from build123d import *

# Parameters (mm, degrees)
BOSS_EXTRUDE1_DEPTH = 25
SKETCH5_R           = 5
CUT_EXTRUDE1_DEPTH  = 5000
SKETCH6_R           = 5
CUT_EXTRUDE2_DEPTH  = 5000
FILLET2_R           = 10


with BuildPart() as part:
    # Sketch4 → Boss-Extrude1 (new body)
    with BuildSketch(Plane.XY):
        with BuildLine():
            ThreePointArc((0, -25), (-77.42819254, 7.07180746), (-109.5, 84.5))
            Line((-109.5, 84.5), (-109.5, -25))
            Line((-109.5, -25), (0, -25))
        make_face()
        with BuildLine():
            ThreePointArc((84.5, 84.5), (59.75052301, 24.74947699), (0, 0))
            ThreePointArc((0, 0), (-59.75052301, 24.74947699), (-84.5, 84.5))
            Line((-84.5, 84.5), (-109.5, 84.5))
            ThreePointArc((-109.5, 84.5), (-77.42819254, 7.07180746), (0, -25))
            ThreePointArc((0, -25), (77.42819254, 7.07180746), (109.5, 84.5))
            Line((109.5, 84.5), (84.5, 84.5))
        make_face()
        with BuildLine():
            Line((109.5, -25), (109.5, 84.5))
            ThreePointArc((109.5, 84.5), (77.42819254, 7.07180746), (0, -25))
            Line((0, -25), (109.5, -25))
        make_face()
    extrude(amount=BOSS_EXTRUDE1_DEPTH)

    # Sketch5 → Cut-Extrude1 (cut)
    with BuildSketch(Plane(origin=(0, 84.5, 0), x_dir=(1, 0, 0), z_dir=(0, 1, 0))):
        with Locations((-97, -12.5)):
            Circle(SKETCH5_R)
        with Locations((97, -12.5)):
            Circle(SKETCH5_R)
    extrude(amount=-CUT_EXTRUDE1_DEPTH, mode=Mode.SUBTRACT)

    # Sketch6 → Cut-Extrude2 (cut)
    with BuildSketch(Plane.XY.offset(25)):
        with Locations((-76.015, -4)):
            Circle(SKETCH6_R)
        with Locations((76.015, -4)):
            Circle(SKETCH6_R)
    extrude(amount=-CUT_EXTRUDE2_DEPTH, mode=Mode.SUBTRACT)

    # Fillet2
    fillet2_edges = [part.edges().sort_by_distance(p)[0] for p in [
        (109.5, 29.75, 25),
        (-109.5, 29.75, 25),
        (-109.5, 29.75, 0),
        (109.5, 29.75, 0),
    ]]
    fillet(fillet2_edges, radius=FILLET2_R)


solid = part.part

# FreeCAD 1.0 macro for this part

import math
import FreeCAD as App
import Part
import Sketcher


def edges_at(feature, points):
    """Names of the edges that pass closest to the given points."""
    edges = feature.Shape.Edges
    near = lambda p: min(range(len(edges)), key=lambda i: edges[i].distToShape(Part.Vertex(*p))[0])
    return sorted({f"Edge{near(p) + 1}" for p in points})

doc = App.newDocument("Part")
params = doc.addObject("Spreadsheet::Sheet", "Params")
for row, (alias, value) in enumerate([
    ("sketch1_radius", "84.5 mm"),
    ("sketch1_width", "219 mm"),
    ("sketch1_height", "109.5 mm"),
    ("pad1_length", "25 mm"),
    ("sketch2_diameter", "10 mm"),
    ("pocket1_length", "5000 mm"),
    ("sketch3_diameter", "10 mm"),
    ("pocket2_length", "5000 mm"),
    ("fillet_radius", "10 mm"),
], start=1):
    params.set(f"A{row}", alias)
    params.set(f"B{row}", "=" + value)
    params.setAlias(f"B{row}", alias)

body = doc.addObject("PartDesign::Body", "Body")

sketch1 = body.newObject("Sketcher::SketchObject", "Sketch")
sketch1.AttachmentSupport = (doc.getObject("XY_Plane"), [""])
sketch1.MapMode = "FlatFace"
sketch1.addGeometry([
    Part.LineSegment(App.Vector(-110, 84, 0), App.Vector(-110, -25, 0)),
    Part.LineSegment(App.Vector(-110, -25, 0), App.Vector(110, -25, 0)),
    Part.LineSegment(App.Vector(110, -25, 0), App.Vector(110, 84, 0)),
    Part.LineSegment(App.Vector(110, 84, 0), App.Vector(84, 84, 0)),
    Part.ArcOfCircle(Part.Circle(App.Vector(0, 85, 0), App.Vector(0, 0, 1), 85), math.radians(-90), math.radians(0)),
    Part.ArcOfCircle(Part.Circle(App.Vector(0, 85, 0), App.Vector(0, 0, 1), 85), math.radians(-180), math.radians(-90)),
    Part.LineSegment(App.Vector(-84, 84, 0), App.Vector(-110, 84, 0)),
], False)
sketch1.addConstraint([
    Sketcher.Constraint("Coincident", 0, 2, 1, 1),
    Sketcher.Constraint("Coincident", 1, 2, 2, 1),
    Sketcher.Constraint("Coincident", 2, 2, 3, 1),
    Sketcher.Constraint("Coincident", 3, 2, 4, 2),
    Sketcher.Constraint("Tangent", 4, 1, 5, 2),
    Sketcher.Constraint("Coincident", 5, 1, 6, 1),
    Sketcher.Constraint("Coincident", 6, 2, 0, 1),
    Sketcher.Constraint("Vertical", 0),
    Sketcher.Constraint("Horizontal", 1),
    Sketcher.Constraint("Vertical", 2),
    Sketcher.Constraint("Horizontal", 3),
    Sketcher.Constraint("Horizontal", 6),
    Sketcher.Constraint("Coincident", 4, 1, -1, 1),
    Sketcher.Constraint("Equal", 4, 5),
    Sketcher.Constraint("Symmetric", 3, 2, 5, 1, -2),
    Sketcher.Constraint("Horizontal", 5, 3, 2, 2),
    Sketcher.Constraint("Equal", 3, 6),
    Sketcher.Constraint("Radius", 4, 84.5),
    Sketcher.Constraint("DistanceX", 1, 1, 1, 2, 219.0),
    Sketcher.Constraint("DistanceY", 0, 2, 0, 1, 109.5),
])
sketch1.setExpression("Constraints[17]", "Params.sketch1_radius")
sketch1.setExpression("Constraints[18]", "Params.sketch1_width")
sketch1.setExpression("Constraints[19]", "Params.sketch1_height")
pad1 = body.newObject("PartDesign::Pad", "Pad")
pad1.Profile = sketch1
pad1.setExpression("Length", "Params.pad1_length")

sketch2 = body.newObject("Sketcher::SketchObject", "Sketch001")
sketch2.AttachmentSupport = (doc.getObject("XZ_Plane"), [""])
sketch2.MapMode = "FlatFace"
sketch2.AttachmentOffset = App.Placement(App.Vector(0, 0, -84.5), App.Rotation())
sketch2.addGeometry([
    Part.Circle(App.Vector(-97, 12, 0), App.Vector(0, 0, 1), 5),
    Part.Circle(App.Vector(97, 12, 0), App.Vector(0, 0, 1), 5),
], False)
sketch2.addConstraint([
    Sketcher.Constraint("Equal", 0, 1),
    Sketcher.Constraint("Symmetric", 0, 3, 1, 3, -2),
    Sketcher.Constraint("Diameter", 0, 10.0),
    Sketcher.Constraint("DistanceX", 0, 3, -1, 1, 97.0),
    Sketcher.Constraint("DistanceY", -1, 1, 0, 3, 12.5),
])
sketch2.setExpression("Constraints[2]", "Params.sketch2_diameter")
pocket1 = body.newObject("PartDesign::Pocket", "Pocket")
pocket1.Profile = sketch2
pocket1.setExpression("Length", "Params.pocket1_length")
pocket1.Reversed = True

sketch3 = body.newObject("Sketcher::SketchObject", "Sketch002")
sketch3.AttachmentSupport = (doc.getObject("XY_Plane"), [""])
sketch3.MapMode = "FlatFace"
sketch3.AttachmentOffset = App.Placement(App.Vector(0, 0, 25), App.Rotation())
sketch3.addGeometry([
    Part.Circle(App.Vector(-76, -4, 0), App.Vector(0, 0, 1), 5),
    Part.Circle(App.Vector(76, -4, 0), App.Vector(0, 0, 1), 5),
], False)
sketch3.addConstraint([
    Sketcher.Constraint("Equal", 0, 1),
    Sketcher.Constraint("Symmetric", 0, 3, 1, 3, -2),
    Sketcher.Constraint("Diameter", 0, 10.0),
    Sketcher.Constraint("DistanceY", 0, 3, -1, 1, 4.0),
    Sketcher.Constraint("DistanceX", 0, 3, 1, 3, 152.03),
])
sketch3.setExpression("Constraints[2]", "Params.sketch3_diameter")
pocket2 = body.newObject("PartDesign::Pocket", "Pocket001")
pocket2.Profile = sketch3
pocket2.setExpression("Length", "Params.pocket2_length")
doc.recompute()

fillet = body.newObject("PartDesign::Fillet", "Fillet")
fillet.Base = (pocket2, edges_at(pocket2, [
    (109.5, 29.75, 25),
    (-109.5, 29.75, 25),
    (-109.5, 29.75, 0),
    (109.5, 29.75, 0),
]))
fillet.setExpression("Radius", "Params.fillet_radius")

doc.recompute()
